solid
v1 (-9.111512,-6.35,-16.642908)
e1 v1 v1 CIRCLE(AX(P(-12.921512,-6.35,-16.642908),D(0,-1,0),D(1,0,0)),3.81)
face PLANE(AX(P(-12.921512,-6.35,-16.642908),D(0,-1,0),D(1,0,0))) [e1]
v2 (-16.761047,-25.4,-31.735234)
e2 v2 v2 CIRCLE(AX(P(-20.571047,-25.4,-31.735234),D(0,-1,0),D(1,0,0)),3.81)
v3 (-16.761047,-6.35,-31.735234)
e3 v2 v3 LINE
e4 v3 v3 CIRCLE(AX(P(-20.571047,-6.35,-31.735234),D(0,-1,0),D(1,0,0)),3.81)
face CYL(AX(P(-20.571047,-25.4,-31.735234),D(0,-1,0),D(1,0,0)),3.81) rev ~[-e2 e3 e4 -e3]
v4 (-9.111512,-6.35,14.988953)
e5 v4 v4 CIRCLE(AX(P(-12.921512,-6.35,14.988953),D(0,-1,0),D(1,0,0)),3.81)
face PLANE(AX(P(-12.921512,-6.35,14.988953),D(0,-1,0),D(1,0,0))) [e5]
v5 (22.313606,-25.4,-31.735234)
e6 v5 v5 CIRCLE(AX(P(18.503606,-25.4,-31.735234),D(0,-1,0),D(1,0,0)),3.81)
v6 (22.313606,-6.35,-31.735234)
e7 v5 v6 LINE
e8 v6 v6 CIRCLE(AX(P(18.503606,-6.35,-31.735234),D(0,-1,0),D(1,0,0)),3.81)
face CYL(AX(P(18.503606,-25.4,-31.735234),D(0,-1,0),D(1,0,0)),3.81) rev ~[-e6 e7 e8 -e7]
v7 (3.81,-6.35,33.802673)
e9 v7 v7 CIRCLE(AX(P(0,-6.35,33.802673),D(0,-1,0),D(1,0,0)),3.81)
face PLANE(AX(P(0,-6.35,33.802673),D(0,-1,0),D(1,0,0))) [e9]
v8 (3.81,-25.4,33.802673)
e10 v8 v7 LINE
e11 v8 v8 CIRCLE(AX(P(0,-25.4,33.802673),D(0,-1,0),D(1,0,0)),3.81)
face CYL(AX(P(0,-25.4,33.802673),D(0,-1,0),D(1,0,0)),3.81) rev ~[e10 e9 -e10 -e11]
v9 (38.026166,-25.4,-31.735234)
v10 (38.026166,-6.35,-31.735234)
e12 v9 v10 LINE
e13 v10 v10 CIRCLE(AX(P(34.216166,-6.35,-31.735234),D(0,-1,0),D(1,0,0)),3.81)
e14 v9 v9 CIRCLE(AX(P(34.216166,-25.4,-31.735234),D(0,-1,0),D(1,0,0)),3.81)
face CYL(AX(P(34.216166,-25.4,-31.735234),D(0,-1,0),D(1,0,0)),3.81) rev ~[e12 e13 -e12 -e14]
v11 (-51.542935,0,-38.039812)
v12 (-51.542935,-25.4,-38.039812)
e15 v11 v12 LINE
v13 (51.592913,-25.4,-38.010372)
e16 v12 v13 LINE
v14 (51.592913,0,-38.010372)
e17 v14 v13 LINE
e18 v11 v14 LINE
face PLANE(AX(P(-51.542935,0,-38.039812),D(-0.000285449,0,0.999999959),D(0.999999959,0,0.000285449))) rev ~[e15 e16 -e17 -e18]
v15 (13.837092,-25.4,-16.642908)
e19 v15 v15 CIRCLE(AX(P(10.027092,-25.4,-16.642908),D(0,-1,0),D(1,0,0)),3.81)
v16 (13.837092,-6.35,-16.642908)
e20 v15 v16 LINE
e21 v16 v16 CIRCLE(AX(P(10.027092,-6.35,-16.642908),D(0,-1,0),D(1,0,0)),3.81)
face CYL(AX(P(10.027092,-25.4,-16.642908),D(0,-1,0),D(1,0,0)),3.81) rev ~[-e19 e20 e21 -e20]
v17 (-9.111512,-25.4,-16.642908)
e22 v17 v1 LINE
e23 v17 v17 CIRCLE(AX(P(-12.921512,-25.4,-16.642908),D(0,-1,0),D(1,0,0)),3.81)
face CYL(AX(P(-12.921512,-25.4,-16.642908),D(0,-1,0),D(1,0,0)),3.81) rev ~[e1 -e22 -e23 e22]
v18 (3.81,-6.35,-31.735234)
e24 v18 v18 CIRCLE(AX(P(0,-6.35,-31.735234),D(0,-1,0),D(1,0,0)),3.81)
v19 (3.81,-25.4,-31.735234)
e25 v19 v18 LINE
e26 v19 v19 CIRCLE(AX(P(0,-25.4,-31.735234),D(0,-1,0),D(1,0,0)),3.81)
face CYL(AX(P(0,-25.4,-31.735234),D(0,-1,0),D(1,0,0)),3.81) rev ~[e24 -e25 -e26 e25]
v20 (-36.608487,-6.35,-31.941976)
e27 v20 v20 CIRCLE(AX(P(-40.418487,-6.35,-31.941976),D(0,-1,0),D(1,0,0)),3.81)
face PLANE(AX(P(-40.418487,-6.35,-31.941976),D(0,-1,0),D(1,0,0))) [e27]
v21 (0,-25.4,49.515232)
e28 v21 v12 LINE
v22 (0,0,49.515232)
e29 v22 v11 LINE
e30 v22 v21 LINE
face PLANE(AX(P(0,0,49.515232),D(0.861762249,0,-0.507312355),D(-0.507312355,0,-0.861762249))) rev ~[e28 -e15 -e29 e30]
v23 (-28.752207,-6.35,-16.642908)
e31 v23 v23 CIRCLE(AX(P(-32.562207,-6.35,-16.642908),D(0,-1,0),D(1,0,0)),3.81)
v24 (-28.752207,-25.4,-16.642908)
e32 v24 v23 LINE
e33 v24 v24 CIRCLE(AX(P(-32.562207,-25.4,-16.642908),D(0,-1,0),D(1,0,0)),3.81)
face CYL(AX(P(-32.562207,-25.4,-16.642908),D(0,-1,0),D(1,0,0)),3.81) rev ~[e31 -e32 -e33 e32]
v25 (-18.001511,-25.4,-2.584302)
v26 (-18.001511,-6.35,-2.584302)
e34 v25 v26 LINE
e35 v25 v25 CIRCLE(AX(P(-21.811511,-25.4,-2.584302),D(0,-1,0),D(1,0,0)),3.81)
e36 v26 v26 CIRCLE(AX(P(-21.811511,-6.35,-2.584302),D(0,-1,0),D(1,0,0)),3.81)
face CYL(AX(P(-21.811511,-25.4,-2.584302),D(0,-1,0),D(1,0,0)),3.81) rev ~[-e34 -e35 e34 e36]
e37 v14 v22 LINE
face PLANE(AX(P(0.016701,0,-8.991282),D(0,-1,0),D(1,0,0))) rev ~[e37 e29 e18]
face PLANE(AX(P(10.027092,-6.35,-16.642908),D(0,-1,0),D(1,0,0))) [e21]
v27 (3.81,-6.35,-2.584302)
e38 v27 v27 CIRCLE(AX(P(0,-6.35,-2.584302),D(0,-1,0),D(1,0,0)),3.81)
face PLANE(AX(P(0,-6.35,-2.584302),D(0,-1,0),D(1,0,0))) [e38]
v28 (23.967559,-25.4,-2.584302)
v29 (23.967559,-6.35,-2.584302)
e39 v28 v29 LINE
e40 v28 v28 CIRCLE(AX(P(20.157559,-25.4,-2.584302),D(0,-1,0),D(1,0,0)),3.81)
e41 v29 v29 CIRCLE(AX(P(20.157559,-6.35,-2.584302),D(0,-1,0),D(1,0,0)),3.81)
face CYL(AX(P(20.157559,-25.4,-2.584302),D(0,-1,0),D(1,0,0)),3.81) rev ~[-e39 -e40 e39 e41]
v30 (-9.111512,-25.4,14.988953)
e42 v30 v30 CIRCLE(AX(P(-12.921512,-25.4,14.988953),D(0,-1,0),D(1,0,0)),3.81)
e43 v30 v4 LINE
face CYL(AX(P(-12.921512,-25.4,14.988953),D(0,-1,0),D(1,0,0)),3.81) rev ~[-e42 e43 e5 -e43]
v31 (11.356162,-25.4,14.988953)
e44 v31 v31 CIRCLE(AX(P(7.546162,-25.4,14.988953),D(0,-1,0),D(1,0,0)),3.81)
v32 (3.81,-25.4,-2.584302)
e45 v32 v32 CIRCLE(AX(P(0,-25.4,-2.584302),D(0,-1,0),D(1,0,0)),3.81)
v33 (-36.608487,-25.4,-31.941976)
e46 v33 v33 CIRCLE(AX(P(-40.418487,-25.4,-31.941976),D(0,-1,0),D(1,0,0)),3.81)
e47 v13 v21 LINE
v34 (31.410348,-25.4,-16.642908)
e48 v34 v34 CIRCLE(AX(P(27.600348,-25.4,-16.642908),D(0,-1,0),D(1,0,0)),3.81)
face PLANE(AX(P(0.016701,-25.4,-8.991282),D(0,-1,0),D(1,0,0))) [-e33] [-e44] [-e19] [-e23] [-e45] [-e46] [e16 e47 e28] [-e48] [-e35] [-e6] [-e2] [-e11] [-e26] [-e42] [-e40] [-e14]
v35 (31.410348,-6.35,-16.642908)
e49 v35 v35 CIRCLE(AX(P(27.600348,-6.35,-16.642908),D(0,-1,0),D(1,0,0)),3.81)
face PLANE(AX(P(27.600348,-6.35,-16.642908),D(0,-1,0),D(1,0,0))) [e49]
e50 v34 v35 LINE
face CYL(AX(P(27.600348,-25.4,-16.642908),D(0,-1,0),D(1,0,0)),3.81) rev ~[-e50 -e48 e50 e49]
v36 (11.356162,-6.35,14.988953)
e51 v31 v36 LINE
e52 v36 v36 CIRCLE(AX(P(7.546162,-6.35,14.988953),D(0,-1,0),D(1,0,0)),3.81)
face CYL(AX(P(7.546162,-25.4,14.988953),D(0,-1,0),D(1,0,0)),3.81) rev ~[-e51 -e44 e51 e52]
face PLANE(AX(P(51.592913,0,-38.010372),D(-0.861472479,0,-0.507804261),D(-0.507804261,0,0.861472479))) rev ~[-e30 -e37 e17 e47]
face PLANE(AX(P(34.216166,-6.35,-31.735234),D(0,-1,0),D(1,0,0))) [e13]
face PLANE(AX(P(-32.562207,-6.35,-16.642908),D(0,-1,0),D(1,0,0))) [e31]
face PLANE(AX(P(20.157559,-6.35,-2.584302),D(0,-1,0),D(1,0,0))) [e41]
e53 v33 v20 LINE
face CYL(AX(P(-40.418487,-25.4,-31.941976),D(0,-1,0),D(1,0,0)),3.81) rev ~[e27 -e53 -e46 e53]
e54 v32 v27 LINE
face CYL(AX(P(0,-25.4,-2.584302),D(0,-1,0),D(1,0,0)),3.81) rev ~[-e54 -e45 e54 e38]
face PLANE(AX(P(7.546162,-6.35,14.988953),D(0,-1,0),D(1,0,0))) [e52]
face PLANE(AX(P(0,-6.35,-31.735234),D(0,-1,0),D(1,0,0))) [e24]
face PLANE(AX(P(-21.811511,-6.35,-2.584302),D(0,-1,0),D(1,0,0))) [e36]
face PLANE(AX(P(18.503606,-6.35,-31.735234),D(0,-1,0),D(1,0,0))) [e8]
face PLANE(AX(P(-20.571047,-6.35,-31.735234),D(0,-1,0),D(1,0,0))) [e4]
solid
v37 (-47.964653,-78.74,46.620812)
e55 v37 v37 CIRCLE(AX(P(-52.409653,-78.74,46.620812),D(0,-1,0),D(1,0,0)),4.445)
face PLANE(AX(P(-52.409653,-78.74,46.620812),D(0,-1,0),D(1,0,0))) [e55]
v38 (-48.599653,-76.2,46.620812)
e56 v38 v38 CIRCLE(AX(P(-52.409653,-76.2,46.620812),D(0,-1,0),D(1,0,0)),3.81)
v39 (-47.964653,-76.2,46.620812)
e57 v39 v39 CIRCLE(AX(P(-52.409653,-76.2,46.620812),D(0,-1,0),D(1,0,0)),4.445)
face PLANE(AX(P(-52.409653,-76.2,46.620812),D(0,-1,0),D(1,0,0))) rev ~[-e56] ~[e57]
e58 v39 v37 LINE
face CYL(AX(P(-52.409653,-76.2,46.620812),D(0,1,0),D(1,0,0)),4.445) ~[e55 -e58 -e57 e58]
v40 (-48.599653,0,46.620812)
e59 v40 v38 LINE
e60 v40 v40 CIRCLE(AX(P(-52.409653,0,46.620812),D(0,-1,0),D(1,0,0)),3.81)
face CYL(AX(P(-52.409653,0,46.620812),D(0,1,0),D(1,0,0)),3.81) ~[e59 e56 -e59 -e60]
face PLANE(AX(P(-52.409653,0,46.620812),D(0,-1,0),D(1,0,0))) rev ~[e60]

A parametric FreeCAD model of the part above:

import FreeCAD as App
import Part
import Sketcher
from FreeCAD import Vector
Q = App.Units.Quantity

doc = App.newDocument("Part")
params = doc.addObject("Spreadsheet::Sheet", "Params")
for row, (alias, value) in enumerate([
    ("sketch1_length", "4 in"),
    ("pad1_length", "1 in"),
    ("sketch2_diameter", "0.3 in"),
    ("pocket1_length", "0.75 in"),
    ("sketch3_diameter", "0.3 in"),
    ("pad2_length", "3 in"),
    ("sketch4_diameter", "0.35 in"),
    ("pad3_length", "0.1 in"),
], start=1):
    params.set(f"A{row}", alias)
    params.set(f"B{row}", "=" + value)
    params.setAlias(f"B{row}", alias)

body = doc.addObject("PartDesign::Body", "Body")

# Sketch on XZ plane
sketch1 = body.newObject("Sketcher::SketchObject", "Sketch")
sketch1.AttachmentSupport = (doc.getObject("XZ_Plane"), [""])
sketch1.MapMode = "FlatFace"
sketch1.addGeometry(Part.LineSegment(Vector(51.592913, -38.010372, 0), Vector(0, 49.515232, 0)), False)
sketch1.addGeometry(Part.LineSegment(Vector(0, 49.515232, 0), Vector(-51.542935, -38.039812, 0)), False)
sketch1.addGeometry(Part.LineSegment(Vector(-51.542935, -38.039812, 0), Vector(51.592913, -38.010372, 0)), False)
sketch1.addConstraint(Sketcher.Constraint("Coincident", 0, 2, 1, 1))
sketch1.addConstraint(Sketcher.Constraint("Coincident", 1, 2, 2, 1))
sketch1.addConstraint(Sketcher.Constraint("Coincident", 2, 2, 0, 1))
sketch1.addConstraint(Sketcher.Constraint("PointOnObject", 0, 2, -2))
sketch1.addConstraint(Sketcher.Constraint("Equal", 0, 1))
sketch1.addConstraint(Sketcher.Constraint("Distance", 0, Q("4 in")))
sketch1.addConstraint(Sketcher.Constraint("DistanceY", -1, 1, 0, 2, Q("49.515232 mm")))
sketch1.addConstraint(Sketcher.Constraint("DistanceY", 1, 2, -1, 1, Q("38.039812 mm")))
sketch1.addConstraint(Sketcher.Constraint("DistanceY", 2, 2, -1, 1, Q("38.010372 mm")))
sketch1.setExpression("Constraints[5]", "Params.sketch1_length")
pad1 = body.newObject("PartDesign::Pad", "Pad")
pad1.Profile = sketch1
pad1.setExpression("Length", "Params.pad1_length")

# Sketch on XZ plane
sketch2 = body.newObject("Sketcher::SketchObject", "Sketch001")
sketch2.AttachmentSupport = (doc.getObject("XZ_Plane"), [""])
sketch2.MapMode = "FlatFace"
sketch2.AttachmentOffset = App.Placement(Vector(0, 0, 1 * 25.4), App.Rotation())
sketch2.addGeometry(Part.Circle(Vector(0, 33.802673, 0), Vector(0, 0, 1), 3.81), False)
sketch2.addGeometry(Part.Circle(Vector(-12.921512, 14.988953, 0), Vector(0, 0, 1), 3.81), False)
sketch2.addGeometry(Part.Circle(Vector(7.546162, 14.988953, 0), Vector(0, 0, 1), 3.81), False)
sketch2.addGeometry(Part.Circle(Vector(-21.811511, -2.584302, 0), Vector(0, 0, 1), 3.81), False)
sketch2.addGeometry(Part.Circle(Vector(0, -2.584302, 0), Vector(0, 0, 1), 3.81), False)
sketch2.addGeometry(Part.Circle(Vector(20.157559, -2.584302, 0), Vector(0, 0, 1), 3.81), False)
sketch2.addGeometry(Part.Circle(Vector(-32.562207, -16.642908, 0), Vector(0, 0, 1), 3.81), False)
sketch2.addGeometry(Part.Circle(Vector(-12.921512, -16.642908, 0), Vector(0, 0, 1), 3.81), False)
sketch2.addGeometry(Part.Circle(Vector(10.027092, -16.642908, 0), Vector(0, 0, 1), 3.81), False)
sketch2.addGeometry(Part.Circle(Vector(27.600348, -16.642908, 0), Vector(0, 0, 1), 3.81), False)
sketch2.addGeometry(Part.Circle(Vector(-40.418487, -31.941976, 0), Vector(0, 0, 1), 3.81), False)
sketch2.addGeometry(Part.Circle(Vector(-20.571047, -31.735234, 0), Vector(0, 0, 1), 3.81), False)
sketch2.addGeometry(Part.Circle(Vector(0, -31.735234, 0), Vector(0, 0, 1), 3.81), False)
sketch2.addGeometry(Part.Circle(Vector(18.503606, -31.735234, 0), Vector(0, 0, 1), 3.81), False)
sketch2.addGeometry(Part.Circle(Vector(34.216166, -31.735234, 0), Vector(0, 0, 1), 3.81), False)
sketch2.addConstraint(Sketcher.Constraint("Equal", 0, 1))
sketch2.addConstraint(Sketcher.Constraint("Equal", 1, 2))
sketch2.addConstraint(Sketcher.Constraint("Equal", 2, 3))
sketch2.addConstraint(Sketcher.Constraint("Equal", 3, 4))
sketch2.addConstraint(Sketcher.Constraint("Equal", 4, 5))
sketch2.addConstraint(Sketcher.Constraint("Equal", 5, 6))
sketch2.addConstraint(Sketcher.Constraint("Equal", 6, 7))
sketch2.addConstraint(Sketcher.Constraint("Equal", 7, 8))
sketch2.addConstraint(Sketcher.Constraint("Equal", 8, 9))
sketch2.addConstraint(Sketcher.Constraint("Equal", 9, 10))
sketch2.addConstraint(Sketcher.Constraint("Equal", 10, 11))
sketch2.addConstraint(Sketcher.Constraint("Equal", 11, 12))
sketch2.addConstraint(Sketcher.Constraint("Equal", 12, 13))
sketch2.addConstraint(Sketcher.Constraint("Equal", 13, 14))
sketch2.addConstraint(Sketcher.Constraint("PointOnObject", 0, 3, -2))
sketch2.addConstraint(Sketcher.Constraint("PointOnObject", 4, 3, -2))
sketch2.addConstraint(Sketcher.Constraint("PointOnObject", 12, 3, -2))
sketch2.addConstraint(Sketcher.Constraint("Horizontal", 1, 3, 2, 3))
sketch2.addConstraint(Sketcher.Constraint("Horizontal", 3, 3, 4, 3))
sketch2.addConstraint(Sketcher.Constraint("Horizontal", 4, 3, 5, 3))
sketch2.addConstraint(Sketcher.Constraint("Horizontal", 6, 3, 7, 3))
sketch2.addConstraint(Sketcher.Constraint("Horizontal", 7, 3, 8, 3))
sketch2.addConstraint(Sketcher.Constraint("Horizontal", 8, 3, 9, 3))
sketch2.addConstraint(Sketcher.Constraint("Horizontal", 11, 3, 12, 3))
sketch2.addConstraint(Sketcher.Constraint("Horizontal", 12, 3, 13, 3))
sketch2.addConstraint(Sketcher.Constraint("Horizontal", 13, 3, 14, 3))
sketch2.addConstraint(Sketcher.Constraint("Vertical", 1, 3, 7, 3))
sketch2.addConstraint(Sketcher.Constraint("Diameter", 0, Q("0.3 in")))
sketch2.addConstraint(Sketcher.Constraint("DistanceX", 3, 3, 1, 3, Q("0.35 in")))
sketch2.addConstraint(Sketcher.Constraint("DistanceX", -1, 1, 2, 3, Q("7.546162 mm")))
sketch2.addConstraint(Sketcher.Constraint("DistanceX", 3, 3, -1, 1, Q("21.811511 mm")))
sketch2.addConstraint(Sketcher.Constraint("DistanceX", -1, 1, 5, 3, Q("20.157559 mm")))
sketch2.addConstraint(Sketcher.Constraint("DistanceX", -1, 1, 9, 3, Q("27.600348 mm")))
sketch2.addConstraint(Sketcher.Constraint("DistanceY", 1, 3, 0, 3, Q("18.81372 mm")))
sketch2.addConstraint(Sketcher.Constraint("DistanceY", 6, 3, 1, 3, Q("31.631861 mm")))
sketch2.addConstraint(Sketcher.Constraint("DistanceX", 6, 3, 2, 3, Q("40.108369 mm")))
sketch2.addConstraint(Sketcher.Constraint("DistanceX", 2, 3, 8, 3, Q("2.48093 mm")))
sketch2.addConstraint(Sketcher.Constraint("DistanceX", 10, 3, 6, 3, Q("7.85628 mm")))
sketch2.addConstraint(Sketcher.Constraint("DistanceY", 10, 3, 6, 3, Q("15.299068 mm")))
sketch2.addConstraint(Sketcher.Constraint("DistanceX", 6, 3, 11, 3, Q("11.99116 mm")))
sketch2.addConstraint(Sketcher.Constraint("DistanceY", 11, 3, 3, 3, Q("29.150932 mm")))
sketch2.addConstraint(Sketcher.Constraint("DistanceX", 13, 3, 9, 3, Q("9.096742 mm")))
sketch2.addConstraint(Sketcher.Constraint("DistanceX", 13, 3, 14, 3, Q("15.71256 mm")))
sketch2.addConstraint(Sketcher.Constraint("DistanceY", -1, 1, 0, 3, Q("33.802673 mm")))
sketch2.addConstraint(Sketcher.Constraint("DistanceY", 3, 3, -1, 1, Q("2.584302 mm")))
sketch2.setExpression("Constraints[27]", "Params.sketch2_diameter")
pocket1 = body.newObject("PartDesign::Pocket", "Pocket")
pocket1.Profile = sketch2
pocket1.setExpression("Length", "Params.pocket1_length")
body2 = doc.addObject("PartDesign::Body", "Body001")

# Sketch on XZ plane
sketch3 = body2.newObject("Sketcher::SketchObject", "Sketch002")
sketch3.AttachmentSupport = (doc.getObject("XZ_Plane001"), [""])
sketch3.MapMode = "FlatFace"
sketch3.addGeometry(Part.Circle(Vector(-52.409653, 46.620812, 0), Vector(0, 0, 1), 3.81), False)
sketch3.addConstraint(Sketcher.Constraint("Diameter", 0, Q("0.3 in")))
sketch3.addConstraint(Sketcher.Constraint("DistanceX", 0, 3, -1, 1, Q("52.409653 mm")))
sketch3.addConstraint(Sketcher.Constraint("DistanceY", -1, 1, 0, 3, Q("46.620812 mm")))
sketch3.setExpression("Constraints[0]", "Params.sketch3_diameter")
pad2 = body2.newObject("PartDesign::Pad", "Pad001")
pad2.Profile = sketch3
pad2.setExpression("Length", "Params.pad2_length")

# Sketch on XZ plane
sketch4 = body2.newObject("Sketcher::SketchObject", "Sketch003")
sketch4.AttachmentSupport = (doc.getObject("XZ_Plane001"), [""])
sketch4.MapMode = "FlatFace"
sketch4.AttachmentOffset = App.Placement(Vector(0, 0, 3 * 25.4), App.Rotation())
sketch4.addGeometry(Part.Circle(Vector(-52.409653, 46.620812, 0), Vector(0, 0, 1), 4.445), False)
sketch4.addConstraint(Sketcher.Constraint("Diameter", 0, Q("0.35 in")))
sketch4.addConstraint(Sketcher.Constraint("DistanceX", 0, 3, -1, 1, Q("52.409653 mm")))
sketch4.addConstraint(Sketcher.Constraint("DistanceY", -1, 1, 0, 3, Q("46.620812 mm")))
sketch4.setExpression("Constraints[0]", "Params.sketch4_diameter")
pad3 = body2.newObject("PartDesign::Pad", "Pad002")
pad3.Profile = sketch4
pad3.setExpression("Length", "Params.pad3_length")

doc.recompute()
